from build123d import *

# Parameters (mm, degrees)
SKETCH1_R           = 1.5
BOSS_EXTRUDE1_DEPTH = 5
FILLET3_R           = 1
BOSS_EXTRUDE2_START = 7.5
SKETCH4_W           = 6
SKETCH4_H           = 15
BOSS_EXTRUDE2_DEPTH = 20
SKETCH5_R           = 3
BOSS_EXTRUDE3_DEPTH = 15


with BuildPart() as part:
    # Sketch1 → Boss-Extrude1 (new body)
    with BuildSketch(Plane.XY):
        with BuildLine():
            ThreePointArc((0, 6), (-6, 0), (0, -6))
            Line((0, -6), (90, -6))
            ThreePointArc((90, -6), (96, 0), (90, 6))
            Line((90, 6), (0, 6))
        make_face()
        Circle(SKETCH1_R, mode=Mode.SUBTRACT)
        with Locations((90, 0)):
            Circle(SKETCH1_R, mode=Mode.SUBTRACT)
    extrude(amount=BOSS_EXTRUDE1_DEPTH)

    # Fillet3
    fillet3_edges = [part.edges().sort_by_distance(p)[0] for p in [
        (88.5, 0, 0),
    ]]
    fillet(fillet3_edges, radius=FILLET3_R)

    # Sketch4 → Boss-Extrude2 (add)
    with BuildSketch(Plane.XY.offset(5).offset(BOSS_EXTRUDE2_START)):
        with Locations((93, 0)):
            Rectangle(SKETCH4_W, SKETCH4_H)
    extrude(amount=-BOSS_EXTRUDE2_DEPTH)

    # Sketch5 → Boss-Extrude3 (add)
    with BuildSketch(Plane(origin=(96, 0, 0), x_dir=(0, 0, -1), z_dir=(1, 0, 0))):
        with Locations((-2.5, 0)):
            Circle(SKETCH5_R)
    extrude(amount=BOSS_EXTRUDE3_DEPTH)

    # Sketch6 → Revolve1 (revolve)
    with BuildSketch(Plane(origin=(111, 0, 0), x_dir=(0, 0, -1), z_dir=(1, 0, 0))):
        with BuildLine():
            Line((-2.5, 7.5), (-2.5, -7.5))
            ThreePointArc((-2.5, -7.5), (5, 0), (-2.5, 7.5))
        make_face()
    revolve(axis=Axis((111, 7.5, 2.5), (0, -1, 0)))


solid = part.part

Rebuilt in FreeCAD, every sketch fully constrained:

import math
import FreeCAD as App
import Part
import Sketcher
Q = App.Units.Quantity


def edges_at(feature, points):
    """Names of the edges that pass closest to the given points."""
    edges = feature.Shape.Edges
    near = lambda p: min(range(len(edges)), key=lambda i: edges[i].distToShape(Part.Vertex(*p))[0])
    return sorted({f"Edge{near(p) + 1}" for p in points})


def add_polygon(sketch, points):
    """Adds a closed chain of lines whose ends are joined by coincident constraints."""
    first, n = sketch.GeometryCount, len(points)
    for a, b in zip(points, points[1:] + points[:1]):
        sketch.addGeometry(Part.LineSegment(App.Vector(*a, 0), App.Vector(*b, 0)), False)
    for i in range(n):
        sketch.addConstraint(Sketcher.Constraint("Coincident", first + i, 2, first + (i + 1) % n, 1))

doc = App.newDocument("Part")
body = doc.addObject("PartDesign::Body", "Body")

# Sketch on XY plane
sketch1 = body.newObject("Sketcher::SketchObject", "Sketch")
sketch1.AttachmentSupport = (doc.getObject("XY_Plane"), [""])
sketch1.MapMode = "FlatFace"
sketch1.addGeometry([
    Part.ArcOfCircle(Part.Circle(App.Vector(0, 0, 0), App.Vector(0, 0, 1), 6), math.radians(90), math.radians(270)),  # 0
    Part.LineSegment(App.Vector(0, -6, 0), App.Vector(90, -6, 0)),  # 1
    Part.ArcOfCircle(Part.Circle(App.Vector(90, 0, 0), App.Vector(0, 0, 1), 6), math.radians(-90), math.radians(90)),  # 2
    Part.LineSegment(App.Vector(90, 6, 0), App.Vector(0, 6, 0)),  # 3
    Part.Circle(App.Vector(0, 0, 0), App.Vector(0, 0, 1), 1.5),  # 4
    Part.Circle(App.Vector(90, 0, 0), App.Vector(0, 0, 1), 1.5),  # 5
], False)
sketch1.addConstraint([
    Sketcher.Constraint("Tangent", 0, 2, 1, 1),
    Sketcher.Constraint("Tangent", 1, 2, 2, 1),
    Sketcher.Constraint("Tangent", 2, 2, 3, 1),
    Sketcher.Constraint("Tangent", 3, 2, 0, 1),
    Sketcher.Constraint("Horizontal", 1),
    Sketcher.Constraint("Horizontal", 3),
    Sketcher.Constraint("Coincident", 0, 3, -1, 1),
    Sketcher.Constraint("Coincident", 4, 3, -1, 1),
    Sketcher.Constraint("Coincident", 5, 3, 2, 3),
    Sketcher.Constraint("Equal", 4, 5),
    Sketcher.Constraint("Diameter", 4, Q("3 mm")),
    Sketcher.Constraint("Radius", 0, Q("6 mm")),
    Sketcher.Constraint("DistanceX", 1, 1, 1, 2, Q("90 mm")),
])
pad1 = body.newObject("PartDesign::Pad", "Pad")
pad1.Profile = sketch1
pad1.Length = 5
doc.recompute()

fillet = body.newObject("PartDesign::Fillet", "Fillet")
fillet.Base = (pad1, edges_at(pad1, [(88.5, 0, 0)]))
fillet.Radius = 1

# Sketch on XY plane
sketch2 = body.newObject("Sketcher::SketchObject", "Sketch001")
sketch2.AttachmentSupport = (doc.getObject("XY_Plane"), [""])
sketch2.MapMode = "FlatFace"
sketch2.AttachmentOffset = App.Placement(App.Vector(0, 0, 12.5), App.Rotation())
add_polygon(sketch2, [(90, 7.5), (90, -7.5), (96, -7.5), (96, 7.5)])  # lines 0-3
sketch2.addConstraint([
    Sketcher.Constraint("Vertical", 0),
    Sketcher.Constraint("Horizontal", 1),
    Sketcher.Constraint("Vertical", 2),
    Sketcher.Constraint("Horizontal", 3),
    Sketcher.Constraint("DistanceX", 1, 1, 1, 2, Q("6 mm")),
    Sketcher.Constraint("DistanceY", 0, 2, 0, 1, Q("15 mm")),
    Sketcher.Constraint("DistanceX", -1, 1, 0, 2, Q("90 mm")),
    Sketcher.Constraint("DistanceY", 0, 2, -1, 1, Q("7.5 mm")),
])
pad2 = body.newObject("PartDesign::Pad", "Pad001")
pad2.Profile = sketch2
pad2.Length = 20
pad2.Reversed = True

# Sketch on YZ plane
sketch3 = body.newObject("Sketcher::SketchObject", "Sketch002")
sketch3.AttachmentSupport = (doc.getObject("YZ_Plane"), [""])
sketch3.MapMode = "FlatFace"
sketch3.AttachmentOffset = App.Placement(App.Vector(0, 0, 96), App.Rotation())
sketch3.addGeometry(Part.Circle(App.Vector(0, 2.5, 0), App.Vector(0, 0, 1), 3), False)
sketch3.addConstraint([
    Sketcher.Constraint("PointOnObject", 0, 3, -2),
    Sketcher.Constraint("Diameter", 0, Q("6 mm")),
    Sketcher.Constraint("DistanceY", -1, 1, 0, 3, Q("2.5 mm")),
])
pad3 = body.newObject("PartDesign::Pad", "Pad002")
pad3.Profile = sketch3
pad3.Length = 15

# Sketch on YZ plane
sketch4 = body.newObject("Sketcher::SketchObject", "Sketch003")
sketch4.AttachmentSupport = (doc.getObject("YZ_Plane"), [""])
sketch4.MapMode = "FlatFace"
sketch4.AttachmentOffset = App.Placement(App.Vector(0, 0, 111), App.Rotation())
sketch4.addGeometry([
    Part.LineSegment(App.Vector(7.5, 2.5, 0), App.Vector(-7.5, 2.5, 0)),
    Part.ArcOfCircle(Part.Circle(App.Vector(0, 2.5, 0), App.Vector(0, 0, 1), 7.5), math.radians(180), math.radians(360)),
], False)
sketch4.addGeometry(Part.LineSegment(App.Vector(7.5, 2.5, 0), App.Vector(-7.5, 2.5, 0)), True)  # axis
sketch4.addConstraint([
    Sketcher.Constraint("Coincident", 0, 1, 1, 2),
    Sketcher.Constraint("Coincident", 1, 1, 0, 2),
    Sketcher.Constraint("Horizontal", 0),
    Sketcher.Constraint("Horizontal", 2),
    Sketcher.Constraint("Coincident", 2, 1, 0, 1),
    Sketcher.Constraint("PointOnObject", 1, 3, -2),
    Sketcher.Constraint("Horizontal", 1, 3, 0, 1),
    Sketcher.Constraint("Equal", 0, 2),
    Sketcher.Constraint("Radius", 1, Q("7.5 mm")),
    Sketcher.Constraint("DistanceY", -1, 1, 1, 3, Q("2.5 mm")),
])
revolution = body.newObject("PartDesign::Revolution", "Revolution")
revolution.Profile = sketch4
revolution.ReferenceAxis = (sketch4, ["Axis0"])
revolution.Angle = 360

doc.recompute()
